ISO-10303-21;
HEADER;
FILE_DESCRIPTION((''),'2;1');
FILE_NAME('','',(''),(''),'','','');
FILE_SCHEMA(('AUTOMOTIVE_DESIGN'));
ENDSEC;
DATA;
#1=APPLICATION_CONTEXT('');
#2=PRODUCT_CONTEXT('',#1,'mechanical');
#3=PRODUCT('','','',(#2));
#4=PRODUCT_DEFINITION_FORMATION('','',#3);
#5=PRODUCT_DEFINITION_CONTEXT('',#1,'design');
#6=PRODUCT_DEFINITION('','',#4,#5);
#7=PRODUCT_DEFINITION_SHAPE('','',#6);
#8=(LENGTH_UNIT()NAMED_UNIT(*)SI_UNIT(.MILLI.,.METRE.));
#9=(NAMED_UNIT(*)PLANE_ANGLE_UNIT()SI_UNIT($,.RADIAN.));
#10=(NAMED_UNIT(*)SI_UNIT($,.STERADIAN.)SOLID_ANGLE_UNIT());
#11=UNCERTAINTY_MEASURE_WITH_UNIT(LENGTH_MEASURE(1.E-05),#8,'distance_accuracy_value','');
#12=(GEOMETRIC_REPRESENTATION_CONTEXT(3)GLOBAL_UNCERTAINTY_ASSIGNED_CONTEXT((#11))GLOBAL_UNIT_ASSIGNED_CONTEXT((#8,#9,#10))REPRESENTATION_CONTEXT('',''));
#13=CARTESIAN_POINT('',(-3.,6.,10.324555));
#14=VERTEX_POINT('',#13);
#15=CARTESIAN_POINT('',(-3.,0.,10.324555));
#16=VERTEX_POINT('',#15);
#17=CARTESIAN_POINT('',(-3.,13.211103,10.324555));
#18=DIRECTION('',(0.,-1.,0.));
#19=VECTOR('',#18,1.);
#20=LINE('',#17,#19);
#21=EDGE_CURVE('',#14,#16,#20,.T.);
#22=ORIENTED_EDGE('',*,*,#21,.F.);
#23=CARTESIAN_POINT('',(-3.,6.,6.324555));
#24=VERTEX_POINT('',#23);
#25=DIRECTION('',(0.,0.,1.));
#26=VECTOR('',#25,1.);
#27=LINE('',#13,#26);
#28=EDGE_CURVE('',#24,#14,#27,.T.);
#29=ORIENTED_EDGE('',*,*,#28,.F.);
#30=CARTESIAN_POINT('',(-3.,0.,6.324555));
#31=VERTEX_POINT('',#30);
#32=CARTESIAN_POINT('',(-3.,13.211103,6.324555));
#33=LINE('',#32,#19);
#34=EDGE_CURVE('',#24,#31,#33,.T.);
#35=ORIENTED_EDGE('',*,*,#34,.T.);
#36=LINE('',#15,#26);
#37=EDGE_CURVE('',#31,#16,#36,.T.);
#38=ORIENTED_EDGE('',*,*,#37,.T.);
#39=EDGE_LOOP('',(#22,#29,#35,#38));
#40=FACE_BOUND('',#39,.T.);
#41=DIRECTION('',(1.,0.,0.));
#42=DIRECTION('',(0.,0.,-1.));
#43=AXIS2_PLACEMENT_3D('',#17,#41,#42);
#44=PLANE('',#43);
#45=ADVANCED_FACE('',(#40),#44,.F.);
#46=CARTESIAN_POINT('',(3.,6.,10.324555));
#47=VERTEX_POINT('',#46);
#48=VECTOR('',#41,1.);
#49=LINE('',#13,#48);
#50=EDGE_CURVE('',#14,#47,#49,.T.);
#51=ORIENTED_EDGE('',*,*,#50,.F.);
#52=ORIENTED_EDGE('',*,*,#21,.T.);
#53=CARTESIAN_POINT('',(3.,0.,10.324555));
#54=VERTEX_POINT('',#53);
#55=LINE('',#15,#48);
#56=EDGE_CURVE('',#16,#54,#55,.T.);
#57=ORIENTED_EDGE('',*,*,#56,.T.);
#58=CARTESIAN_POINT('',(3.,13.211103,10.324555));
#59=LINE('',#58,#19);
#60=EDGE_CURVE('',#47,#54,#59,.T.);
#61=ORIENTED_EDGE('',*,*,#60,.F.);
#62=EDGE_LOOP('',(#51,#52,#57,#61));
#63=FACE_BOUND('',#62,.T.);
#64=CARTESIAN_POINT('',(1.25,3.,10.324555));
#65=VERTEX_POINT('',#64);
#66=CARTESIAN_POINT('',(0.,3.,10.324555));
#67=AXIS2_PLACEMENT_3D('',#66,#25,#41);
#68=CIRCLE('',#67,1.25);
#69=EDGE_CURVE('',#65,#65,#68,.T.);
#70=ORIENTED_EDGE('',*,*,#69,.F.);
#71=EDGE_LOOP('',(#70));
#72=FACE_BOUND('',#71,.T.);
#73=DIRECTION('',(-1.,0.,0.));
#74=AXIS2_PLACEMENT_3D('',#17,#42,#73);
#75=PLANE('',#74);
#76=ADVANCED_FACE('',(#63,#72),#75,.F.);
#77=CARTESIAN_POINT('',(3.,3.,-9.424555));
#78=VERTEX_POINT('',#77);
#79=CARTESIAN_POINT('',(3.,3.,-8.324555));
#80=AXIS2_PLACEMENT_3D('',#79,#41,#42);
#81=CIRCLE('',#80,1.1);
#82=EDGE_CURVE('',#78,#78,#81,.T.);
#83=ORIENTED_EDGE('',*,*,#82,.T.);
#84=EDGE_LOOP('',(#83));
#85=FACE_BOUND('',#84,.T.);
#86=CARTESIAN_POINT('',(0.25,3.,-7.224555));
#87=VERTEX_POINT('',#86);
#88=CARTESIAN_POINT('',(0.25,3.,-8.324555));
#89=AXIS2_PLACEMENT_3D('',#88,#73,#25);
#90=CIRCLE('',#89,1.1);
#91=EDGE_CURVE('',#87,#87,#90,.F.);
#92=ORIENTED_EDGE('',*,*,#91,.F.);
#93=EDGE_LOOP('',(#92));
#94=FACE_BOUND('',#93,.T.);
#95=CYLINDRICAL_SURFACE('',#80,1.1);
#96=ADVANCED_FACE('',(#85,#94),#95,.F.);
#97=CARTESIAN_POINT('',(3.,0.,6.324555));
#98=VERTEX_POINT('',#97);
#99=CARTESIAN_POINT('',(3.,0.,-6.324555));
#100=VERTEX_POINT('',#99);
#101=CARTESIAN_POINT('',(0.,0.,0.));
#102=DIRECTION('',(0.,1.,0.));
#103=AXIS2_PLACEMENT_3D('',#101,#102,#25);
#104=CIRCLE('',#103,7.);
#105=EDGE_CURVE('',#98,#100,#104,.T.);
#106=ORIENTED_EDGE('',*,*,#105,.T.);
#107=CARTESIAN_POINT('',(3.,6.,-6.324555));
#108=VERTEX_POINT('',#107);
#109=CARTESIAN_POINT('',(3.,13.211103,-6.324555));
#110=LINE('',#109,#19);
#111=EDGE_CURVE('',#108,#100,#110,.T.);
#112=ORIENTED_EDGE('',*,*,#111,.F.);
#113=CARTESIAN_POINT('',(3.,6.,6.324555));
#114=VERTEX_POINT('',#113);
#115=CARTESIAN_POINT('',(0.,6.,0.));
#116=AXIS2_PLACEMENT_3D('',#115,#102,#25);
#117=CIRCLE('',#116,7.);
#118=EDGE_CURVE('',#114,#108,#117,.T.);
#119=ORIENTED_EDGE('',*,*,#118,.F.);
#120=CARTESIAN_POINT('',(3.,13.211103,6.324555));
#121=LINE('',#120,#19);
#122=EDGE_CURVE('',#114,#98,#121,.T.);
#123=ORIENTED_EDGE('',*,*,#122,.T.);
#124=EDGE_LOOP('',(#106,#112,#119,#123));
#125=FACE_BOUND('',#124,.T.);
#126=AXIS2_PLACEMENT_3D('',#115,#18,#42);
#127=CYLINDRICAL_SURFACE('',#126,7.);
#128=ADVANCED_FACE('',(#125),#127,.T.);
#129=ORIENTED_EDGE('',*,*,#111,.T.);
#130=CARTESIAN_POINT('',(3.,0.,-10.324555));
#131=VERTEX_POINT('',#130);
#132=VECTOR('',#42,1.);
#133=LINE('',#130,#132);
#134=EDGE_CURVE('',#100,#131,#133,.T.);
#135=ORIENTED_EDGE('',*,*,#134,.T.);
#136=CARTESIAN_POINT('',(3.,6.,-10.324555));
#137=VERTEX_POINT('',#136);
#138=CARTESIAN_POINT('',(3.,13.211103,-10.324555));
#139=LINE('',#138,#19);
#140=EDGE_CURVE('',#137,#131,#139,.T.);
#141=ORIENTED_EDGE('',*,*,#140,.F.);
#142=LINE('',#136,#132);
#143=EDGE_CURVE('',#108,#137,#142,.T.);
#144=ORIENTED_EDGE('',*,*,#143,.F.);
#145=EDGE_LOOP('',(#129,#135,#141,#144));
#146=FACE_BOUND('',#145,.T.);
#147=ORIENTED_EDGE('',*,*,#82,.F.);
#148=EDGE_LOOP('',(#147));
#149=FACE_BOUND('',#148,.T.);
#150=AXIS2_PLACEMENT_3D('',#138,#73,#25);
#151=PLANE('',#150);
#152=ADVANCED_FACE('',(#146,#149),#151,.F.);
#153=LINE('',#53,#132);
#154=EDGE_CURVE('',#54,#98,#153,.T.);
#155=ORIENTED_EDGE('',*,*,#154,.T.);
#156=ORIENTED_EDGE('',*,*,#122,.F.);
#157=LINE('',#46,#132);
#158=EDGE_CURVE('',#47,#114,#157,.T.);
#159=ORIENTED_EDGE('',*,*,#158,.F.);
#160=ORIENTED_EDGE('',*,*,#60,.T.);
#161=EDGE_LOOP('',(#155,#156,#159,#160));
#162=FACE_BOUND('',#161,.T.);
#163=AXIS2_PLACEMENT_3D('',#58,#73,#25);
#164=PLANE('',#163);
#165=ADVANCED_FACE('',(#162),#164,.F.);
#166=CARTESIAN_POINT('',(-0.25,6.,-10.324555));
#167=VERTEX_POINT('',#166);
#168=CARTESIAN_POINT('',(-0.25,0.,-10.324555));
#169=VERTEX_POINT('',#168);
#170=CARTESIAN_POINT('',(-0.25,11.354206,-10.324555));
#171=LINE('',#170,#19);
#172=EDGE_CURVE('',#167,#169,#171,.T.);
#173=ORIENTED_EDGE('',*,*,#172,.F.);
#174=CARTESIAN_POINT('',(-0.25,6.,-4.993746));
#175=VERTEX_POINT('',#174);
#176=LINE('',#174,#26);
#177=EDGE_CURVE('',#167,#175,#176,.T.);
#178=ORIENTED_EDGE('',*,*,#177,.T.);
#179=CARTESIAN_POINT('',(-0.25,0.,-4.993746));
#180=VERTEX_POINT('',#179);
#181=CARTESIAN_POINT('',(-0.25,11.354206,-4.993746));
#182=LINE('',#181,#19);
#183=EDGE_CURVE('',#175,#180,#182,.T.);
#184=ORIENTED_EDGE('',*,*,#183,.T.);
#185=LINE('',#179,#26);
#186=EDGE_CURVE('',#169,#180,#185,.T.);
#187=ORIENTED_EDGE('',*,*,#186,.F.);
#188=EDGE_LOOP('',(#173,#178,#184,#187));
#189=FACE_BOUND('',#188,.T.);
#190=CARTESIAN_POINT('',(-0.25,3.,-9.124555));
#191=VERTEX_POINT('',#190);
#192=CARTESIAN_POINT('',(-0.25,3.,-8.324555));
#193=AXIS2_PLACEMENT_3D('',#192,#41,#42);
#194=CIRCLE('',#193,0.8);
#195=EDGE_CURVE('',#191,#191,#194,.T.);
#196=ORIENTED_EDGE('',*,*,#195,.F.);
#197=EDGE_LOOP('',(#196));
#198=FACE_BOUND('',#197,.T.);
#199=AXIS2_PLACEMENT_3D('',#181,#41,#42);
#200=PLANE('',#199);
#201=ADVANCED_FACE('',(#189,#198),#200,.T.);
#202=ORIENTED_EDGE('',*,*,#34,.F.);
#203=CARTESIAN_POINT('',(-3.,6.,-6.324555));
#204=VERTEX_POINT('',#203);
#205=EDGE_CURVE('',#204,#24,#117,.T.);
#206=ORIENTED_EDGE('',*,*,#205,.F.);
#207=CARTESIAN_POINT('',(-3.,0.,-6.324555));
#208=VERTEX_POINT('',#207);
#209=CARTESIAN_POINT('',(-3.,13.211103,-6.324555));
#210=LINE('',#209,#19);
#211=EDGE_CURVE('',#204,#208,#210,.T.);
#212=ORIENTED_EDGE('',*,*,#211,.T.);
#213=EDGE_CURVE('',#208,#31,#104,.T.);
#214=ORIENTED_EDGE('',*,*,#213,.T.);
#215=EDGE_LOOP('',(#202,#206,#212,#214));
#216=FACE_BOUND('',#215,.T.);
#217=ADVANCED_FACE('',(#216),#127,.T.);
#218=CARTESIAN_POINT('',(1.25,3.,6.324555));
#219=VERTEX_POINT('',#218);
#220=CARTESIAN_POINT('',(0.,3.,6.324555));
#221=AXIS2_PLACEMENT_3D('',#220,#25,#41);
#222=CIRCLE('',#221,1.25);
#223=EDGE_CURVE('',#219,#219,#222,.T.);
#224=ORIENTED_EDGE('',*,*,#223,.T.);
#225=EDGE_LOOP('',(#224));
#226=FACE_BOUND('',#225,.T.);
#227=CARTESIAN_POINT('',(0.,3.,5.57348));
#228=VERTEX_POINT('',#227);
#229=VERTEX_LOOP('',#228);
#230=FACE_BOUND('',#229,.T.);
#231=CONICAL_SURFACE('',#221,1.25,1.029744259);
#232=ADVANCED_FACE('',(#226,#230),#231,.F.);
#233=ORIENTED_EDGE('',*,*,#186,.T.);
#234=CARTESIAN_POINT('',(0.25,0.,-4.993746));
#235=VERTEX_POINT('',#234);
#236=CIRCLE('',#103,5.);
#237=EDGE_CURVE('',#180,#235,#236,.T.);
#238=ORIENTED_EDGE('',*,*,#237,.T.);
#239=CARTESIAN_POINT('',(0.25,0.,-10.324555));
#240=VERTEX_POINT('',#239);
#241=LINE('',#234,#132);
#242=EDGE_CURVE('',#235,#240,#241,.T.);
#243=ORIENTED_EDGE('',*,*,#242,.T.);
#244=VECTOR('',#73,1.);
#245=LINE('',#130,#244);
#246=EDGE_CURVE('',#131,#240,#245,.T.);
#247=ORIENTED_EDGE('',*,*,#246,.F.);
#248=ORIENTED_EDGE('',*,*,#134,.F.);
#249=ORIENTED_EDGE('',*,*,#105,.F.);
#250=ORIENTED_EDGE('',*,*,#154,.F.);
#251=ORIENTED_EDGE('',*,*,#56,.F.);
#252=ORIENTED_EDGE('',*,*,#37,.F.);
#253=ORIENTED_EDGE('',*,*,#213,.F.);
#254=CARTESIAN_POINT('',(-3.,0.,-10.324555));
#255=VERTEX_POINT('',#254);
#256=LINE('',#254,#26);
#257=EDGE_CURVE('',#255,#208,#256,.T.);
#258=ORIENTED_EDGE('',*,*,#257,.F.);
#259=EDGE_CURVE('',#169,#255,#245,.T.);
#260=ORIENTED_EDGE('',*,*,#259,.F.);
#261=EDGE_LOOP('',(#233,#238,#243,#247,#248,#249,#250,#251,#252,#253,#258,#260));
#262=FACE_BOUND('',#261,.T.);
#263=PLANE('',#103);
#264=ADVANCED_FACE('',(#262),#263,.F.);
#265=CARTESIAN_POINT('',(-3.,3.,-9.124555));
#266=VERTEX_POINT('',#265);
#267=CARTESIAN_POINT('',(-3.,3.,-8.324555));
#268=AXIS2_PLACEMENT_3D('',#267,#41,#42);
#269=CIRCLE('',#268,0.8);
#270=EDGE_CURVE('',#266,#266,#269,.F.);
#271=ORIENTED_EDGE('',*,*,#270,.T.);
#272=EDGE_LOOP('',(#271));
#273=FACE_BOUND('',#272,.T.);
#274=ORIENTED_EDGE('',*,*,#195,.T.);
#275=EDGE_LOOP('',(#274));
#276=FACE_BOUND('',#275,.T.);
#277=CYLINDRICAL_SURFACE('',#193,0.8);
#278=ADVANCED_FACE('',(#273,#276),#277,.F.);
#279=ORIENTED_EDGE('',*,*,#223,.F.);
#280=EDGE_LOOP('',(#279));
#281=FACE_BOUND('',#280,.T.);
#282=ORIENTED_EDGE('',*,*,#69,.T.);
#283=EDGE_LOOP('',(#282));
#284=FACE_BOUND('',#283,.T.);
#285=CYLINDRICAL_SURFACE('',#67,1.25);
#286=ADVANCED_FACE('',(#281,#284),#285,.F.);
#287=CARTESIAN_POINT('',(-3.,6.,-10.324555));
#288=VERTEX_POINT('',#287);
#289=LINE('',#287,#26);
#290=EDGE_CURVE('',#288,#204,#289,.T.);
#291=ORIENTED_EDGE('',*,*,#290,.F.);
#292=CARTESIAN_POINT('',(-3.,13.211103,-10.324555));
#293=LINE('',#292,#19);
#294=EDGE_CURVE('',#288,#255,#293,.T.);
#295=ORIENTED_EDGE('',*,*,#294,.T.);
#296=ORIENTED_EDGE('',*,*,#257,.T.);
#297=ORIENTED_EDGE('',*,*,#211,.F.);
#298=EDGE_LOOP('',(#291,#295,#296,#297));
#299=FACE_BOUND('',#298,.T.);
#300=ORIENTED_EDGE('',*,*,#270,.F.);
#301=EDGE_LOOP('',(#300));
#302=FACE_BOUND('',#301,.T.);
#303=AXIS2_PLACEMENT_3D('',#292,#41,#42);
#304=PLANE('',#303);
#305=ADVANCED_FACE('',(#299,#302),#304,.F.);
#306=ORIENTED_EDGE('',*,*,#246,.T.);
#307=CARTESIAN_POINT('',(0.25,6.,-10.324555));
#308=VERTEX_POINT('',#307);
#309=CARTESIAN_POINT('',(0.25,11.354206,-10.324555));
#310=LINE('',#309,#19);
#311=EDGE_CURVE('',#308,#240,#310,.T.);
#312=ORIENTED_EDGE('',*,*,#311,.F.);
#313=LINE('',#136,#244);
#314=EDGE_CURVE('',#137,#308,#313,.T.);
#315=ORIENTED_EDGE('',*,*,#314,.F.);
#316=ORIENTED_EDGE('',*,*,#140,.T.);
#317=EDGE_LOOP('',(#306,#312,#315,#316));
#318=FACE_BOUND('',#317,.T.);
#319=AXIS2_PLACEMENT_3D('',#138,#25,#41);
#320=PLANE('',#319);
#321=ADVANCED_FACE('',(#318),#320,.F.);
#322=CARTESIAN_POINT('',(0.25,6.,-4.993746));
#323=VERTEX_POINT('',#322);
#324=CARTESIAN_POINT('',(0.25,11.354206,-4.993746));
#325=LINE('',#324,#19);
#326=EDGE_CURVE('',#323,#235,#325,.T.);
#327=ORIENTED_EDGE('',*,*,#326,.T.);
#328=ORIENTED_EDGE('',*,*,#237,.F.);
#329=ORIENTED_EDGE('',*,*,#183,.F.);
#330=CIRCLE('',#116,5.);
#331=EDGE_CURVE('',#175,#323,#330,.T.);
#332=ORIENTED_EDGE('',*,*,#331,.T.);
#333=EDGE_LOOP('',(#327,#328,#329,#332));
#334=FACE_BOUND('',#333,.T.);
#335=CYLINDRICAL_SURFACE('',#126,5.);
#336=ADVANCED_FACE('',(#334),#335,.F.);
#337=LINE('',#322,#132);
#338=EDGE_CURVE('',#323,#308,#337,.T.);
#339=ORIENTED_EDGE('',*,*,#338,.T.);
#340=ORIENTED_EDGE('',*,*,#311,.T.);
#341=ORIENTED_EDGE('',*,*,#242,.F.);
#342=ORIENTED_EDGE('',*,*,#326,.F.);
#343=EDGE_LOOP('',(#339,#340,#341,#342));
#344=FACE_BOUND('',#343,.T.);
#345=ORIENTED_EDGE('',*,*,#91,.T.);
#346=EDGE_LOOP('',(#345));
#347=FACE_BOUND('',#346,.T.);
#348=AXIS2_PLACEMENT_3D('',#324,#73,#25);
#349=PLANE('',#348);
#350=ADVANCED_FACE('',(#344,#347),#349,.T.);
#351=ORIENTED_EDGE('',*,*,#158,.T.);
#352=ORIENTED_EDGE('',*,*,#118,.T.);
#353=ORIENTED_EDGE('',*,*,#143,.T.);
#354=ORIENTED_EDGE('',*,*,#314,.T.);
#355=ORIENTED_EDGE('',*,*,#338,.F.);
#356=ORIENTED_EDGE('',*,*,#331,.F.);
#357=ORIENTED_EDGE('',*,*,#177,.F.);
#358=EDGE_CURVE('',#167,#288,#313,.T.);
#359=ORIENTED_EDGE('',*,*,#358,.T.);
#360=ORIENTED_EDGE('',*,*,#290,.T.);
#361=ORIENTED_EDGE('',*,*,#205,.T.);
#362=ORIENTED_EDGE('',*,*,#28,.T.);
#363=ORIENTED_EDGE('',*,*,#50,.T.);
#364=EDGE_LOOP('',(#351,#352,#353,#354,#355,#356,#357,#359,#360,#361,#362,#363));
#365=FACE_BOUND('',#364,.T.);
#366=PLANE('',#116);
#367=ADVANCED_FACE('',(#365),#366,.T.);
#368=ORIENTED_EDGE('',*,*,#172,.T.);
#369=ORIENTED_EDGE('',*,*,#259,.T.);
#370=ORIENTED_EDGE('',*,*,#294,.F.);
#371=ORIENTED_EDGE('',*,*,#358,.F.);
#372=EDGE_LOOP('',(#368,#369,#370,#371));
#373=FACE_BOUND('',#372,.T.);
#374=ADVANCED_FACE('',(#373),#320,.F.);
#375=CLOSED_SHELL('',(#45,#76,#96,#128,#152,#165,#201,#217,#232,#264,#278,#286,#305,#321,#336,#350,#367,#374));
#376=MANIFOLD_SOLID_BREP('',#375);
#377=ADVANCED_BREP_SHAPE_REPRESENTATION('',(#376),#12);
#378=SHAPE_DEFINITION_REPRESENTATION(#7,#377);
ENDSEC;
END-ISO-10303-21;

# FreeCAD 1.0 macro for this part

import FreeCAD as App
import Part
import Sketcher
Q = App.Units.Quantity

doc = App.newDocument("Part")
body = doc.addObject("PartDesign::Body", "Body")

# Sketch on XZ plane
sketch1 = body.newObject("Sketcher::SketchObject", "Sketch")
sketch1.AttachmentSupport = (doc.getObject("XZ_Plane"), [""])
sketch1.MapMode = "FlatFace"
sketch1.addGeometry(Part.Circle(App.Vector(0, 0, 0), App.Vector(0, 0, 1), 7), False)
sketch1.addGeometry(Part.Circle(App.Vector(0, 0, 0), App.Vector(0, 0, 1), 5), False)
sketch1.addConstraint(Sketcher.Constraint("Coincident", 0, 3, -1, 1))
sketch1.addConstraint(Sketcher.Constraint("Coincident", 1, 3, -1, 1))
sketch1.addConstraint(Sketcher.Constraint("Diameter", 0, Q("14 mm")))
sketch1.addConstraint(Sketcher.Constraint("Diameter", 1, Q("10 mm")))
pad1 = body.newObject("PartDesign::Pad", "Pad")
pad1.Profile = sketch1
pad1.Length = 6
pad1.Reversed = True

# Sketch on XZ plane
sketch2 = body.newObject("Sketcher::SketchObject", "Sketch001")
sketch2.AttachmentSupport = (doc.getObject("XZ_Plane"), [""])
sketch2.MapMode = "FlatFace"
sketch2.addGeometry(Part.LineSegment(App.Vector(-3, 6.3, 0), App.Vector(-3, 10.3, 0)), False)
sketch2.addGeometry(Part.LineSegment(App.Vector(-3, 10.3, 0), App.Vector(3, 10.3, 0)), False)
sketch2.addGeometry(Part.LineSegment(App.Vector(3, 10.3, 0), App.Vector(3, 6.3, 0)), False)
sketch2.addGeometry(Part.LineSegment(App.Vector(3, 6.3, 0), App.Vector(-3, 6.3, 0)), False)
sketch2.addGeometry(Part.LineSegment(App.Vector(-3, -10.3, 0), App.Vector(-3, -6.3, 0)), False)
sketch2.addGeometry(Part.LineSegment(App.Vector(-3, -6.3, 0), App.Vector(3, -6.3, 0)), False)
sketch2.addGeometry(Part.LineSegment(App.Vector(3, -6.3, 0), App.Vector(3, -10.3, 0)), False)
sketch2.addGeometry(Part.LineSegment(App.Vector(3, -10.3, 0), App.Vector(-3, -10.3, 0)), False)
sketch2.addConstraint(Sketcher.Constraint("Coincident", 0, 2, 1, 1))
sketch2.addConstraint(Sketcher.Constraint("Coincident", 1, 2, 2, 1))
sketch2.addConstraint(Sketcher.Constraint("Coincident", 2, 2, 3, 1))
sketch2.addConstraint(Sketcher.Constraint("Coincident", 3, 2, 0, 1))
sketch2.addConstraint(Sketcher.Constraint("Coincident", 4, 2, 5, 1))
sketch2.addConstraint(Sketcher.Constraint("Coincident", 5, 2, 6, 1))
sketch2.addConstraint(Sketcher.Constraint("Coincident", 6, 2, 7, 1))
sketch2.addConstraint(Sketcher.Constraint("Coincident", 7, 2, 4, 1))
sketch2.addConstraint(Sketcher.Constraint("Vertical", 0))
sketch2.addConstraint(Sketcher.Constraint("Horizontal", 1))
sketch2.addConstraint(Sketcher.Constraint("Vertical", 2))
sketch2.addConstraint(Sketcher.Constraint("Horizontal", 3))
sketch2.addConstraint(Sketcher.Constraint("Vertical", 4))
sketch2.addConstraint(Sketcher.Constraint("Horizontal", 5))
sketch2.addConstraint(Sketcher.Constraint("Vertical", 6))
sketch2.addConstraint(Sketcher.Constraint("Horizontal", 7))
sketch2.addConstraint(Sketcher.Constraint("Symmetric", 2, 2, 4, 2, -1, 1))
sketch2.addConstraint(Sketcher.Constraint("Symmetric", 0, 2, 6, 2, -1, 1))
sketch2.addConstraint(Sketcher.Constraint("Vertical", 3, 2, 4, 2))
sketch2.addConstraint(Sketcher.Constraint("DistanceX", 1, 1, 1, 2, Q("6 mm")))
sketch2.addConstraint(Sketcher.Constraint("DistanceY", 0, 1, 0, 2, Q("4 mm")))
sketch2.addConstraint(Sketcher.Constraint("DistanceY", 4, 2, 3, 2, Q("12.649111 mm")))
pad2 = body.newObject("PartDesign::Pad", "Pad001")
pad2.Profile = sketch2
pad2.Length = 6
pad2.Reversed = True

# Sketch on XZ plane
sketch3 = body.newObject("Sketcher::SketchObject", "Sketch002")
sketch3.AttachmentSupport = (doc.getObject("XZ_Plane"), [""])
sketch3.MapMode = "FlatFace"
sketch3.addGeometry(Part.LineSegment(App.Vector(-0.2, -10.3, 0), App.Vector(-0.2, -5, 0)), False)
sketch3.addGeometry(Part.LineSegment(App.Vector(-0.2, -5, 0), App.Vector(0.2, -5, 0)), False)
sketch3.addGeometry(Part.LineSegment(App.Vector(0.2, -5, 0), App.Vector(0.2, -10.3, 0)), False)
sketch3.addGeometry(Part.LineSegment(App.Vector(0.2, -10.3, 0), App.Vector(-0.2, -10.3, 0)), False)
sketch3.addConstraint(Sketcher.Constraint("Coincident", 0, 2, 1, 1))
sketch3.addConstraint(Sketcher.Constraint("Coincident", 1, 2, 2, 1))
sketch3.addConstraint(Sketcher.Constraint("Coincident", 2, 2, 3, 1))
sketch3.addConstraint(Sketcher.Constraint("Coincident", 3, 2, 0, 1))
sketch3.addConstraint(Sketcher.Constraint("Vertical", 0))
sketch3.addConstraint(Sketcher.Constraint("Horizontal", 1))
sketch3.addConstraint(Sketcher.Constraint("Vertical", 2))
sketch3.addConstraint(Sketcher.Constraint("Horizontal", 3))
sketch3.addConstraint(Sketcher.Constraint("DistanceX", 1, 1, 1, 2, Q("0.5 mm")))
sketch3.addConstraint(Sketcher.Constraint("DistanceX", 0, 2, -1, 1, Q("0.25 mm")))
sketch3.addConstraint(Sketcher.Constraint("DistanceY", 0, 1, 0, 2, Q("5.330809 mm")))
sketch3.addConstraint(Sketcher.Constraint("DistanceY", 0, 2, -1, 1, Q("4.993746 mm")))
pocket1 = body.newObject("PartDesign::Pocket", "Pocket")
pocket1.Profile = sketch3
pocket1.Length = 6

# Sketch on XY plane
sketch4 = body.newObject("Sketcher::SketchObject", "Sketch003")
sketch4.AttachmentSupport = (doc.getObject("XY_Plane"), [""])
sketch4.MapMode = "FlatFace"
sketch4.AttachmentOffset = App.Placement(App.Vector(0, 0, 10.324555), App.Rotation())
sketch4.addGeometry(Part.Circle(App.Vector(0, 3, 0), App.Vector(0, 0, 1), 1.2), False)
sketch4.addConstraint(Sketcher.Constraint("PointOnObject", 0, 3, -2))
sketch4.addConstraint(Sketcher.Constraint("Diameter", 0, Q("2.5 mm")))
sketch4.addConstraint(Sketcher.Constraint("DistanceY", -1, 1, 0, 3, Q("3 mm")))
doc.recompute()
hole = body.newObject("PartDesign::Hole", "Hole")
hole.Profile = sketch4
hole.ThreadType = "None"
hole.Diameter = 2.5
hole.DepthType = "Dimension"
hole.Depth = 4
hole.DrillPoint = "Angled"
hole.DrillPointAngle = 118

# Sketch on YZ plane
sketch5 = body.newObject("Sketcher::SketchObject", "Sketch004")
sketch5.AttachmentSupport = (doc.getObject("YZ_Plane"), [""])
sketch5.MapMode = "FlatFace"
sketch5.AttachmentOffset = App.Placement(App.Vector(0, 0, 3), App.Rotation())
sketch5.addGeometry(Part.Circle(App.Vector(3, -8.3, 0), App.Vector(0, 0, 1), 1.1), False)
sketch5.addConstraint(Sketcher.Constraint("Diameter", 0, Q("2.2 mm")))
sketch5.addConstraint(Sketcher.Constraint("DistanceX", -1, 1, 0, 3, Q("3 mm")))
sketch5.addConstraint(Sketcher.Constraint("DistanceY", 0, 3, -1, 1, Q("8.324555 mm")))
pocket2 = body.newObject("PartDesign::Pocket", "Pocket001")
pocket2.Profile = sketch5
pocket2.Type = "UpToFirst"

# Sketch on YZ plane
sketch6 = body.newObject("Sketcher::SketchObject", "Sketch005")
sketch6.AttachmentSupport = (doc.getObject("YZ_Plane"), [""])
sketch6.MapMode = "FlatFace"
sketch6.AttachmentOffset = App.Placement(App.Vector(0, 0, -0.25), App.Rotation())
sketch6.addGeometry(Part.Circle(App.Vector(3, -8.3, 0), App.Vector(0, 0, 1), 0.8), False)
sketch6.addConstraint(Sketcher.Constraint("Diameter", 0, Q("1.6 mm")))
sketch6.addConstraint(Sketcher.Constraint("DistanceX", -1, 1, 0, 3, Q("3 mm")))
sketch6.addConstraint(Sketcher.Constraint("DistanceY", 0, 3, -1, 1, Q("8.324555 mm")))
doc.recompute()
hole2 = body.newObject("PartDesign::Hole", "Hole001")
hole2.Profile = sketch6
hole2.ThreadType = "None"
hole2.Diameter = 1.6
hole2.DepthType = "ThroughAll"

doc.recompute()
